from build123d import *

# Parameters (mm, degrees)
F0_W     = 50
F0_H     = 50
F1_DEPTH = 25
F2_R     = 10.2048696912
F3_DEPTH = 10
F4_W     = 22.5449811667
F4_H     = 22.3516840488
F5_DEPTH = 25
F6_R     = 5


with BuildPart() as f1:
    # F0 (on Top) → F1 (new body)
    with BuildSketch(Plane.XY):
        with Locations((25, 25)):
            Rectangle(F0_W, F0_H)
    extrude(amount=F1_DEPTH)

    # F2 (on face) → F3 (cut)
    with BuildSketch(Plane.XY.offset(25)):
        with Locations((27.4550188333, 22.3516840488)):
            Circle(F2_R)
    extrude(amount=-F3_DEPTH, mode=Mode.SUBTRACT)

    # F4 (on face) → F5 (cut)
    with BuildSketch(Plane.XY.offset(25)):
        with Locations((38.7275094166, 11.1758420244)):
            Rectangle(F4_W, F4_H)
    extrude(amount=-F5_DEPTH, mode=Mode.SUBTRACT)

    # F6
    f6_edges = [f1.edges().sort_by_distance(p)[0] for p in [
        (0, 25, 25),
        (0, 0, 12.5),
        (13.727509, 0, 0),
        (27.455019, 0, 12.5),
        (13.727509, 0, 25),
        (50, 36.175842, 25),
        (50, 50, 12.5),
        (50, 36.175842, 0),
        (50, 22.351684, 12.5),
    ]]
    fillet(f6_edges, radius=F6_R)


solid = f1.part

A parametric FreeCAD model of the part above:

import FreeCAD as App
import Part
import Sketcher


def edges_at(feature, points):
    """Names of the edges that pass closest to the given points."""
    edges = feature.Shape.Edges
    near = lambda p: min(range(len(edges)), key=lambda i: edges[i].distToShape(Part.Vertex(*p))[0])
    return sorted({f"Edge{near(p) + 1}" for p in points})


def add_polygon(sketch, points):
    """Adds a closed chain of lines whose ends are joined by coincident constraints."""
    first, n = sketch.GeometryCount, len(points)
    for a, b in zip(points, points[1:] + points[:1]):
        sketch.addGeometry(Part.LineSegment(App.Vector(*a, 0), App.Vector(*b, 0)), False)
    for i in range(n):
        sketch.addConstraint(Sketcher.Constraint("Coincident", first + i, 2, first + (i + 1) % n, 1))

doc = App.newDocument("Part")
params = doc.addObject("Spreadsheet::Sheet", "Params")
for row, (alias, value) in enumerate([
    ("sketch1_width", "50 mm"),
    ("pad1_length", "25 mm"),
    ("pocket1_length", "10 mm"),
    ("pocket2_length", "25 mm"),
    ("fillet_radius", "5 mm"),
], start=1):
    params.set(f"A{row}", alias)
    params.set(f"B{row}", "=" + value)
    params.setAlias(f"B{row}", alias)

body = doc.addObject("PartDesign::Body", "Body")

# Sketch on XY plane
sketch1 = doc.addObject("Sketcher::SketchObject", "Sketch")
body.addObject(sketch1)
sketch1.AttachmentSupport = (doc.XY_Plane, [""])
sketch1.MapMode = "FlatFace"
add_polygon(sketch1, [(0, 50), (0, 0), (50, 0), (50, 50)])  # lines 0-3
sketch1.addConstraint(Sketcher.Constraint("Vertical", 0))
sketch1.addConstraint(Sketcher.Constraint("Horizontal", 1))
sketch1.addConstraint(Sketcher.Constraint("Vertical", 2))
sketch1.addConstraint(Sketcher.Constraint("Horizontal", 3))
sketch1.addConstraint(Sketcher.Constraint("Coincident", 0, 2, -1, 1))
sketch1.addConstraint(Sketcher.Constraint("Equal", 3, 0))
sketch1.addConstraint(Sketcher.Constraint("DistanceX", 1, 1, 1, 2, 50.0))
sketch1.setExpression("Constraints[10]", "Params.sketch1_width")
pad1 = doc.addObject("PartDesign::Pad", "Pad")
body.addObject(pad1)
pad1.Profile = sketch1
pad1.setExpression("Length", "Params.pad1_length")

# Sketch on XY plane
sketch2 = doc.addObject("Sketcher::SketchObject", "Sketch001")
body.addObject(sketch2)
sketch2.AttachmentSupport = (doc.XY_Plane, [""])
sketch2.MapMode = "FlatFace"
sketch2.AttachmentOffset = App.Placement(App.Vector(0, 0, 25), App.Rotation())
sketch2.addGeometry(Part.Circle(App.Vector(27.455019, 22.351684, 0), App.Vector(0, 0, 1), 10.20487), False)
sketch2.addConstraint(Sketcher.Constraint("Diameter", 0, 20.409739))
sketch2.addConstraint(Sketcher.Constraint("DistanceX", -1, 1, 0, 3, 27.455019))
sketch2.addConstraint(Sketcher.Constraint("DistanceY", -1, 1, 0, 3, 22.351684))
pocket1 = doc.addObject("PartDesign::Pocket", "Pocket")
body.addObject(pocket1)
pocket1.Profile = sketch2
pocket1.setExpression("Length", "Params.pocket1_length")

# Sketch on XY plane
sketch3 = doc.addObject("Sketcher::SketchObject", "Sketch002")
body.addObject(sketch3)
sketch3.AttachmentSupport = (doc.XY_Plane, [""])
sketch3.MapMode = "FlatFace"
sketch3.AttachmentOffset = App.Placement(App.Vector(0, 0, 25), App.Rotation())
add_polygon(sketch3, [(27.455019, 22.351684), (27.455019, 0), (50, 0), (50, 22.351684)])  # lines 0-3
sketch3.addConstraint(Sketcher.Constraint("Vertical", 0))
sketch3.addConstraint(Sketcher.Constraint("Horizontal", 1))
sketch3.addConstraint(Sketcher.Constraint("Vertical", 2))
sketch3.addConstraint(Sketcher.Constraint("Horizontal", 3))
sketch3.addConstraint(Sketcher.Constraint("PointOnObject", 0, 2, -1))
sketch3.addConstraint(Sketcher.Constraint("DistanceX", -1, 1, 1, 2, 50.0))
sketch3.addConstraint(Sketcher.Constraint("DistanceX", 1, 1, 1, 2, 22.544981))
sketch3.addConstraint(Sketcher.Constraint("DistanceY", 0, 2, 0, 1, 22.351684))
pocket2 = doc.addObject("PartDesign::Pocket", "Pocket001")
body.addObject(pocket2)
pocket2.Profile = sketch3
pocket2.setExpression("Length", "Params.pocket2_length")
doc.recompute()

fillet = doc.addObject("PartDesign::Fillet", "Fillet")
body.addObject(fillet)
fillet.Base = (pocket2, edges_at(pocket2, [
    (0, 25, 25),
    (0, 0, 12.5),
    (13.728, 0, 0),
    (27.455, 0, 12.5),
    (13.728, 0, 25),
    (50, 36.176, 25),
    (50, 50, 12.5),
    (50, 36.176, 0),
    (50, 22.352, 12.5),
]))
fillet.setExpression("Radius", "Params.fillet_radius")

doc.recompute()
